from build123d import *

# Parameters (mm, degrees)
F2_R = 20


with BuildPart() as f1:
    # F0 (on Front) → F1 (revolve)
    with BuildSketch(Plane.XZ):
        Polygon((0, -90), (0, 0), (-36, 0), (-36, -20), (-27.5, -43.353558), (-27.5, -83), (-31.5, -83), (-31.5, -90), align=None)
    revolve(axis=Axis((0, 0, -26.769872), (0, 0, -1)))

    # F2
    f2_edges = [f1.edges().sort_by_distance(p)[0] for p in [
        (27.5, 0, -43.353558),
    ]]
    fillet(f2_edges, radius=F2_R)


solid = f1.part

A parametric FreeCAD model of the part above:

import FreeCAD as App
import Part
import Sketcher
Q = App.Units.Quantity


def edges_at(feature, points):
    """Names of the edges that pass closest to the given points."""
    edges = feature.Shape.Edges
    near = lambda p: min(range(len(edges)), key=lambda i: edges[i].distToShape(Part.Vertex(*p))[0])
    return sorted({f"Edge{near(p) + 1}" for p in points})


def add_polygon(sketch, points):
    """Adds a closed chain of lines whose ends are joined by coincident constraints."""
    first, n = sketch.GeometryCount, len(points)
    for a, b in zip(points, points[1:] + points[:1]):
        sketch.addGeometry(Part.LineSegment(App.Vector(*a, 0), App.Vector(*b, 0)), False)
    for i in range(n):
        sketch.addConstraint(Sketcher.Constraint("Coincident", first + i, 2, first + (i + 1) % n, 1))

doc = App.newDocument("Part")
body = doc.addObject("PartDesign::Body", "Body")

sketch1 = doc.addObject("Sketcher::SketchObject", "Sketch")
body.addObject(sketch1)
sketch1.AttachmentSupport = (doc.XZ_Plane, [""])
sketch1.MapMode = "FlatFace"
add_polygon(sketch1, [(0, -90), (0, 0), (-36, 0), (-36, -20), (-27.5, -43.353558), (-27.5, -83), (-31.5, -83), (-31.5, -90)])
sketch1.addConstraint(Sketcher.Constraint("Vertical", 0))
sketch1.addConstraint(Sketcher.Constraint("Horizontal", 1))
sketch1.addConstraint(Sketcher.Constraint("Vertical", 2))
sketch1.addConstraint(Sketcher.Constraint("Vertical", 4))
sketch1.addConstraint(Sketcher.Constraint("Horizontal", 5))
sketch1.addConstraint(Sketcher.Constraint("Vertical", 6))
sketch1.addConstraint(Sketcher.Constraint("Horizontal", 7))
sketch1.addConstraint(Sketcher.Constraint("Coincident", 0, 2, -1, 1))
sketch1.addConstraint(Sketcher.Constraint("DistanceX", 1, 2, 1, 1, 36.0))
sketch1.addConstraint(Sketcher.Constraint("DistanceX", 5, 2, 5, 1, 4.0))
sketch1.addConstraint(Sketcher.Constraint("DistanceY", 0, 1, 0, 2, 90.0))
sketch1.addConstraint(Sketcher.Constraint("DistanceY", 2, 2, 2, 1, 20.0))
sketch1.addConstraint(Sketcher.Constraint("DistanceY", 6, 2, 6, 1, 7.0))
sketch1.addConstraint(Sketcher.Constraint("Angle", 3, Q("-70 deg")))
sketch1.addConstraint(Sketcher.Constraint("DistanceX", 7, 1, 7, 2, 31.5))
revolution = doc.addObject("PartDesign::Revolution", "Revolution")
body.addObject(revolution)
revolution.Profile = sketch1
revolution.ReferenceAxis = (sketch1, ["V_Axis"])
revolution.Angle = 360
doc.recompute()

fillet = doc.addObject("PartDesign::Fillet", "Fillet")
body.addObject(fillet)
fillet.Base = (revolution, edges_at(revolution, [(27.5, 0, -43.354)]))
fillet.Radius = 20

doc.recompute()
